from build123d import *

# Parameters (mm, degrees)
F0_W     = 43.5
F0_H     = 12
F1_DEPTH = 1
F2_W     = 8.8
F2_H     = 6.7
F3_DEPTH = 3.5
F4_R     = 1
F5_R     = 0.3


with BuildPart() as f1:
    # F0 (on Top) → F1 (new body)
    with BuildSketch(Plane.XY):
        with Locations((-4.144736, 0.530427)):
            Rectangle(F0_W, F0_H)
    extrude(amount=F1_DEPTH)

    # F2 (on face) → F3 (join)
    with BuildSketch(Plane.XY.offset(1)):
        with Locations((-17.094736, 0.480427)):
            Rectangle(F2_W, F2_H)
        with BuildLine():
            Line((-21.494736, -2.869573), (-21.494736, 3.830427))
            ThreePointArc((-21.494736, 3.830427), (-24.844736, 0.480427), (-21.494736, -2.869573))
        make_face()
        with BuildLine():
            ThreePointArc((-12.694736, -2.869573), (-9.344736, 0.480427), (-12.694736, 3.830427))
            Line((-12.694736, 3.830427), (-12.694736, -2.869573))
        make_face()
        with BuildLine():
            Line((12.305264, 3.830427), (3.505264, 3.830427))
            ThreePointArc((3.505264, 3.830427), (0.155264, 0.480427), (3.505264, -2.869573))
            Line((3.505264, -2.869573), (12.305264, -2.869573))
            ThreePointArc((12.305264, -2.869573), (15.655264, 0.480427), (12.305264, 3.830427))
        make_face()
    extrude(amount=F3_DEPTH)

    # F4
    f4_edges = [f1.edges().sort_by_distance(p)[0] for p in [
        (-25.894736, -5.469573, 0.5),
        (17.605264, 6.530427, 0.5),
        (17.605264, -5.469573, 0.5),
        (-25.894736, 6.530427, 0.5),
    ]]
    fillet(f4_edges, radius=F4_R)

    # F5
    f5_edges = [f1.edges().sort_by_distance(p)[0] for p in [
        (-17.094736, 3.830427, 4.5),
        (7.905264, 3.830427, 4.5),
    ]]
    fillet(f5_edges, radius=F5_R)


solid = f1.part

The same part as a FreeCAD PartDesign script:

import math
import FreeCAD as App
import Part
import Sketcher

V = App.Vector
Q = App.Units.Quantity


def edges_at(feature, points):
    """Names of the edges that pass closest to the given points."""
    edges = feature.Shape.Edges
    near = lambda p: min(range(len(edges)), key=lambda i: edges[i].distToShape(Part.Vertex(*p))[0])
    return sorted({f"Edge{near(p) + 1}" for p in points})

doc = App.newDocument("Part")
body = doc.addObject("PartDesign::Body", "Body")

sketch1 = body.newObject("Sketcher::SketchObject", "Sketch")
sketch1.AttachmentSupport = (doc.getObject("XY_Plane"), [""])
sketch1.MapMode = "FlatFace"
sketch1.addGeometry(Part.LineSegment(V(-25.894736, 6.530427, 0), V(-25.894736, -5.469573, 0)), False)
sketch1.addGeometry(Part.LineSegment(V(-25.894736, -5.469573, 0), V(17.605264, -5.469573, 0)), False)
sketch1.addGeometry(Part.LineSegment(V(17.605264, -5.469573, 0), V(17.605264, 6.530427, 0)), False)
sketch1.addGeometry(Part.LineSegment(V(17.605264, 6.530427, 0), V(-25.894736, 6.530427, 0)), False)
sketch1.addConstraint(Sketcher.Constraint("Coincident", 0, 2, 1, 1))
sketch1.addConstraint(Sketcher.Constraint("Coincident", 1, 2, 2, 1))
sketch1.addConstraint(Sketcher.Constraint("Coincident", 2, 2, 3, 1))
sketch1.addConstraint(Sketcher.Constraint("Coincident", 3, 2, 0, 1))
sketch1.addConstraint(Sketcher.Constraint("Vertical", 0))
sketch1.addConstraint(Sketcher.Constraint("Horizontal", 1))
sketch1.addConstraint(Sketcher.Constraint("Vertical", 2))
sketch1.addConstraint(Sketcher.Constraint("Horizontal", 3))
sketch1.addConstraint(Sketcher.Constraint("DistanceY", 0, 2, 0, 1, Q("12 mm")))
sketch1.addConstraint(Sketcher.Constraint("DistanceX", 1, 1, 1, 2, Q("43.5 mm")))
sketch1.addConstraint(Sketcher.Constraint("DistanceX", 0, 2, -1, 1, Q("25.894736 mm")))
sketch1.addConstraint(Sketcher.Constraint("DistanceY", 0, 2, -1, 1, Q("5.469573 mm")))
pad1 = body.newObject("PartDesign::Pad", "Pad")
pad1.Profile = sketch1
pad1.Length = 1

sketch2 = body.newObject("Sketcher::SketchObject", "Sketch001")
sketch2.AttachmentSupport = (doc.getObject("XY_Plane"), [""])
sketch2.MapMode = "FlatFace"
sketch2.AttachmentOffset = App.Placement(V(0, 0, 1), App.Rotation())
sketch2.addGeometry(Part.LineSegment(V(-21.494736, -2.869573, 0), V(-12.694736, -2.869573, 0)), False)
sketch2.addGeometry(Part.ArcOfCircle(Part.Circle(V(-12.694736, 0.480427, 0), V(0, 0, 1), 3.35), math.radians(-90), math.radians(90)), False)
sketch2.addGeometry(Part.LineSegment(V(-12.694736, 3.830427, 0), V(-21.494736, 3.830427, 0)), False)
sketch2.addGeometry(Part.ArcOfCircle(Part.Circle(V(-21.494736, 0.480427, 0), V(0, 0, 1), 3.35), math.radians(90), math.radians(270)), False)
sketch2.addGeometry(Part.LineSegment(V(12.305264, 3.830427, 0), V(3.505264, 3.830427, 0)), False)
sketch2.addGeometry(Part.ArcOfCircle(Part.Circle(V(3.505264, 0.480427, 0), V(0, 0, 1), 3.35), math.radians(90), math.radians(270)), False)
sketch2.addGeometry(Part.LineSegment(V(3.505264, -2.869573, 0), V(12.305264, -2.869573, 0)), False)
sketch2.addGeometry(Part.ArcOfCircle(Part.Circle(V(12.305264, 0.480427, 0), V(0, 0, 1), 3.35), math.radians(-90), math.radians(90)), False)
sketch2.addConstraint(Sketcher.Constraint("Tangent", 0, 2, 1, 1))
sketch2.addConstraint(Sketcher.Constraint("Tangent", 1, 2, 2, 1))
sketch2.addConstraint(Sketcher.Constraint("Tangent", 2, 2, 3, 1))
sketch2.addConstraint(Sketcher.Constraint("Tangent", 3, 2, 0, 1))
sketch2.addConstraint(Sketcher.Constraint("Tangent", 4, 2, 5, 1))
sketch2.addConstraint(Sketcher.Constraint("Tangent", 5, 2, 6, 1))
sketch2.addConstraint(Sketcher.Constraint("Tangent", 6, 2, 7, 1))
sketch2.addConstraint(Sketcher.Constraint("Tangent", 7, 2, 4, 1))
sketch2.addConstraint(Sketcher.Constraint("Horizontal", 0))
sketch2.addConstraint(Sketcher.Constraint("Horizontal", 2))
sketch2.addConstraint(Sketcher.Constraint("Horizontal", 4))
sketch2.addConstraint(Sketcher.Constraint("Horizontal", 6))
sketch2.addConstraint(Sketcher.Constraint("Equal", 3, 5))
sketch2.addConstraint(Sketcher.Constraint("Horizontal", 3, 3, 5, 3))
sketch2.addConstraint(Sketcher.Constraint("Equal", 2, 4))
sketch2.addConstraint(Sketcher.Constraint("Radius", 1, Q("3.35 mm")))
sketch2.addConstraint(Sketcher.Constraint("DistanceX", 0, 1, 0, 2, Q("8.8 mm")))
sketch2.addConstraint(Sketcher.Constraint("DistanceX", 3, 3, 5, 3, Q("25 mm")))
sketch2.addConstraint(Sketcher.Constraint("DistanceX", 1, 3, -1, 1, Q("12.694736 mm")))
sketch2.addConstraint(Sketcher.Constraint("DistanceY", -1, 1, 1, 3, Q("0.480427 mm")))
pad2 = body.newObject("PartDesign::Pad", "Pad001")
pad2.Profile = sketch2
pad2.Length = 3.5
doc.recompute()

fillet = body.newObject("PartDesign::Fillet", "Fillet")
fillet.Base = (pad2, edges_at(pad2, [
    (-25.895, -5.47, 0.5),
    (17.605, 6.53, 0.5),
    (17.605, -5.47, 0.5),
    (-25.895, 6.53, 0.5),
]))
fillet.Radius = 1
doc.recompute()

fillet2 = body.newObject("PartDesign::Fillet", "Fillet001")
fillet2.Base = (fillet, edges_at(fillet, [(-17.095, 3.83, 4.5), (7.905, 3.83, 4.5)]))
fillet2.Radius = 0.3

doc.recompute()
